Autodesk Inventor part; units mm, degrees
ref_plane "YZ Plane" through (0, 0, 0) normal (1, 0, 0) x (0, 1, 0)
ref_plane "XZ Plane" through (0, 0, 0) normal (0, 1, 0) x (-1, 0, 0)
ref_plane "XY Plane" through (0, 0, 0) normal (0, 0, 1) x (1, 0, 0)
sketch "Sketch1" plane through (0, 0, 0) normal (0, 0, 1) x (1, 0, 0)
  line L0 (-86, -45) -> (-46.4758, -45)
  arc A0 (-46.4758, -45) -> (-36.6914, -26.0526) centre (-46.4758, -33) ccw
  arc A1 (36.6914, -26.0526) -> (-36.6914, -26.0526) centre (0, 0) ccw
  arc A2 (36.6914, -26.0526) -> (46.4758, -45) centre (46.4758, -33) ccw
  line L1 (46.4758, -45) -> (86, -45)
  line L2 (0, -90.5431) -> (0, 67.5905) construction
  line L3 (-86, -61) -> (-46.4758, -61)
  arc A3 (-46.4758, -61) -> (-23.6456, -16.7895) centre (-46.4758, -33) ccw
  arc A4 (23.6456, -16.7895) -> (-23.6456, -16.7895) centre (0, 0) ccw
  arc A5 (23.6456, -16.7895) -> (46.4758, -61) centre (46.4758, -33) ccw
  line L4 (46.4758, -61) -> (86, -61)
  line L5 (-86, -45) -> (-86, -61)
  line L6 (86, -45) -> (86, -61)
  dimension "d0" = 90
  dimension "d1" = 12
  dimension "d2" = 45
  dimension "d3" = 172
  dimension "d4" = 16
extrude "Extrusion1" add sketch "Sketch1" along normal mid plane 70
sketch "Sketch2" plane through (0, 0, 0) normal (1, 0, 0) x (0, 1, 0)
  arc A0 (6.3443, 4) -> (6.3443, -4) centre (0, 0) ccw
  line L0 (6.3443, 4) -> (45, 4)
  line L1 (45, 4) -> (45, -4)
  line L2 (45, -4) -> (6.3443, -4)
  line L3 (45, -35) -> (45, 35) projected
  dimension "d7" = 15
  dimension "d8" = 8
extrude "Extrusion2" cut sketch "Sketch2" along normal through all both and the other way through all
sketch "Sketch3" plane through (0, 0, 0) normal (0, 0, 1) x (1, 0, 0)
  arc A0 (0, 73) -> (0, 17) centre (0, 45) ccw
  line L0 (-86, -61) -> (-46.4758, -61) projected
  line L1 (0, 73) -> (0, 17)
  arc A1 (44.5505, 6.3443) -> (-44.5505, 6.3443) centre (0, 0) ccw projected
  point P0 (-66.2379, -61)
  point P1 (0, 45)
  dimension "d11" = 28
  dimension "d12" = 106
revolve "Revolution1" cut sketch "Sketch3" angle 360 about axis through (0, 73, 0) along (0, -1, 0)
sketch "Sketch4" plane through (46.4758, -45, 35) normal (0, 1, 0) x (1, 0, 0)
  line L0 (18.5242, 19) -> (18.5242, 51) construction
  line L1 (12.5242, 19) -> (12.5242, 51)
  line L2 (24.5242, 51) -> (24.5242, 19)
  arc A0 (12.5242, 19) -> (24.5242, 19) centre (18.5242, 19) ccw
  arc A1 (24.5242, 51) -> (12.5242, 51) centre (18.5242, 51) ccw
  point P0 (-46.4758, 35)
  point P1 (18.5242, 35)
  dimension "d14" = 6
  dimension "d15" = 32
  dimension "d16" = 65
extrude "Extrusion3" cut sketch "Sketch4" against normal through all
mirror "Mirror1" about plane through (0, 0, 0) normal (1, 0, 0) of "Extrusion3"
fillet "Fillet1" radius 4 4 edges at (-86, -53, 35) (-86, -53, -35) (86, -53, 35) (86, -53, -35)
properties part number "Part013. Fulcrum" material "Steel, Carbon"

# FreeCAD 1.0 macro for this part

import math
import FreeCAD as App
import Part
import Sketcher

V = App.Vector


def edges_at(feature, points):
    """Names of the edges that pass closest to the given points."""
    edges = feature.Shape.Edges
    near = lambda p: min(range(len(edges)), key=lambda i: edges[i].distToShape(Part.Vertex(*p))[0])
    return sorted({f"Edge{near(p) + 1}" for p in points})

doc = App.newDocument("Part")
body = doc.addObject("PartDesign::Body", "Body")

# Sketch on XY plane
sketch1 = body.newObject("Sketcher::SketchObject", "Sketch")
sketch1.AttachmentSupport = (doc.getObject("XY_Plane"), [""])
sketch1.MapMode = "FlatFace"
sketch1.addGeometry(Part.LineSegment(V(-46, -45, 0), V(-86, -45, 0)), False)
sketch1.addGeometry(Part.LineSegment(V(-86, -45, 0), V(-86, -61, 0)), False)
sketch1.addGeometry(Part.LineSegment(V(-86, -61, 0), V(-46, -61, 0)), False)
sketch1.addGeometry(Part.ArcOfCircle(Part.Circle(V(-46, -33, 0), V(0, 0, 1), 28), math.radians(-90), math.radians(35)), False)
sketch1.addGeometry(Part.ArcOfCircle(Part.Circle(V(0, 0, 0), V(0, 0, 1), 29), math.radians(-35), math.radians(215)), False)
sketch1.addGeometry(Part.ArcOfCircle(Part.Circle(V(46, -33, 0), V(0, 0, 1), 28), math.radians(145), math.radians(270)), False)
sketch1.addGeometry(Part.LineSegment(V(46, -61, 0), V(86, -61, 0)), False)
sketch1.addGeometry(Part.LineSegment(V(86, -61, 0), V(86, -45, 0)), False)
sketch1.addGeometry(Part.LineSegment(V(86, -45, 0), V(46, -45, 0)), False)
sketch1.addGeometry(Part.ArcOfCircle(Part.Circle(V(46, -33, 0), V(0, 0, 1), 12), math.radians(145), math.radians(270)), False)
sketch1.addGeometry(Part.ArcOfCircle(Part.Circle(V(0, 0, 0), V(0, 0, 1), 45), math.radians(-35), math.radians(215)), False)
sketch1.addGeometry(Part.ArcOfCircle(Part.Circle(V(-46, -33, 0), V(0, 0, 1), 12), math.radians(-90), math.radians(35)), False)
sketch1.addConstraint(Sketcher.Constraint("Coincident", 0, 2, 1, 1))
sketch1.addConstraint(Sketcher.Constraint("Coincident", 1, 2, 2, 1))
sketch1.addConstraint(Sketcher.Constraint("Tangent", 2, 2, 3, 1))
sketch1.addConstraint(Sketcher.Constraint("Tangent", 3, 2, 4, 2))
sketch1.addConstraint(Sketcher.Constraint("Tangent", 4, 1, 5, 1))
sketch1.addConstraint(Sketcher.Constraint("Tangent", 5, 2, 6, 1))
sketch1.addConstraint(Sketcher.Constraint("Coincident", 6, 2, 7, 1))
sketch1.addConstraint(Sketcher.Constraint("Coincident", 7, 2, 8, 1))
sketch1.addConstraint(Sketcher.Constraint("Tangent", 8, 2, 9, 2))
sketch1.addConstraint(Sketcher.Constraint("Tangent", 9, 1, 10, 1))
sketch1.addConstraint(Sketcher.Constraint("Tangent", 10, 2, 11, 2))
sketch1.addConstraint(Sketcher.Constraint("Tangent", 11, 1, 0, 1))
sketch1.addConstraint(Sketcher.Constraint("Horizontal", 0))
sketch1.addConstraint(Sketcher.Constraint("Vertical", 1))
sketch1.addConstraint(Sketcher.Constraint("Horizontal", 2))
sketch1.addConstraint(Sketcher.Constraint("Horizontal", 6))
sketch1.addConstraint(Sketcher.Constraint("Vertical", 7))
sketch1.addConstraint(Sketcher.Constraint("Horizontal", 8))
sketch1.addConstraint(Sketcher.Constraint("Coincident", 4, 3, -1, 1))
sketch1.addConstraint(Sketcher.Constraint("Coincident", 10, 3, -1, 1))
sketch1.addConstraint(Sketcher.Constraint("Coincident", 9, 3, 5, 3))
sketch1.addConstraint(Sketcher.Constraint("Coincident", 11, 3, 3, 3))
sketch1.addConstraint(Sketcher.Constraint("Equal", 3, 5))
sketch1.addConstraint(Sketcher.Constraint("Symmetric", 1, 2, 6, 2, -2))
sketch1.addConstraint(Sketcher.Constraint("Radius", 9, 12.0))
sketch1.addConstraint(Sketcher.Constraint("Radius", 10, 45.0))
sketch1.addConstraint(Sketcher.Constraint("DistanceY", 1, 2, 1, 1, 16.0))
sketch1.addConstraint(Sketcher.Constraint("DistanceY", 0, 2, -1, 1, 45.0))
sketch1.addConstraint(Sketcher.Constraint("DistanceX", 0, 2, -1, 1, 86.0))
pad1 = body.newObject("PartDesign::Pad", "Pad")
pad1.Profile = sketch1
pad1.Length = 70
pad1.Midplane = True

# Sketch on YZ plane
sketch2 = body.newObject("Sketcher::SketchObject", "Sketch001")
sketch2.AttachmentSupport = (doc.getObject("YZ_Plane"), [""])
sketch2.MapMode = "FlatFace"
sketch2.addGeometry(Part.LineSegment(V(45, 4, 0), V(6, 4, 0)), False)
sketch2.addGeometry(Part.ArcOfCircle(Part.Circle(V(0, 0, 0), V(0, 0, 1), 8), math.radians(32), math.radians(328)), False)
sketch2.addGeometry(Part.LineSegment(V(6, -4, 0), V(45, -4, 0)), False)
sketch2.addGeometry(Part.LineSegment(V(45, -4, 0), V(45, 4, 0)), False)
sketch2.addConstraint(Sketcher.Constraint("Coincident", 0, 2, 1, 1))
sketch2.addConstraint(Sketcher.Constraint("Coincident", 1, 2, 2, 1))
sketch2.addConstraint(Sketcher.Constraint("Coincident", 2, 2, 3, 1))
sketch2.addConstraint(Sketcher.Constraint("Coincident", 3, 2, 0, 1))
sketch2.addConstraint(Sketcher.Constraint("Horizontal", 0))
sketch2.addConstraint(Sketcher.Constraint("Horizontal", 2))
sketch2.addConstraint(Sketcher.Constraint("Vertical", 3))
sketch2.addConstraint(Sketcher.Constraint("Coincident", 1, 3, -1, 1))
sketch2.addConstraint(Sketcher.Constraint("Vertical", 0, 2, 1, 2))
sketch2.addConstraint(Sketcher.Constraint("Radius", 1, 7.5))
sketch2.addConstraint(Sketcher.Constraint("DistanceY", 3, 1, 3, 2, 8.0))
sketch2.addConstraint(Sketcher.Constraint("DistanceX", -1, 1, 2, 2, 45.0))
pocket1 = body.newObject("PartDesign::Pocket", "Pocket")
pocket1.Profile = sketch2
pocket1.Type = "ThroughAll"
pocket1.Midplane = True

# Sketch on XY plane
sketch3 = body.newObject("Sketcher::SketchObject", "Sketch002")
sketch3.AttachmentSupport = (doc.getObject("XY_Plane"), [""])
sketch3.MapMode = "FlatFace"
sketch3.addGeometry(Part.ArcOfCircle(Part.Circle(V(0, 45, 0), V(0, 0, 1), 28), math.radians(90), math.radians(270)), False)
sketch3.addGeometry(Part.LineSegment(V(0, 17, 0), V(0, 73, 0)), False)
sketch3.addConstraint(Sketcher.Constraint("Coincident", 0, 1, 1, 2))
sketch3.addConstraint(Sketcher.Constraint("Coincident", 1, 1, 0, 2))
sketch3.addConstraint(Sketcher.Constraint("Vertical", 1))
sketch3.addConstraint(Sketcher.Constraint("PointOnObject", 0, 3, -2))
sketch3.addConstraint(Sketcher.Constraint("PointOnObject", 0, 1, -2))
sketch3.addConstraint(Sketcher.Constraint("Radius", 0, 28.0))
sketch3.addConstraint(Sketcher.Constraint("DistanceY", -1, 1, 0, 3, 45.0))
groove = body.newObject("PartDesign::Groove", "Groove")
groove.Profile = sketch3
groove.ReferenceAxis = (sketch3, ["V_Axis"])
groove.Angle = 360

# Sketch on XZ plane
sketch4 = body.newObject("Sketcher::SketchObject", "Sketch003")
sketch4.AttachmentSupport = (doc.getObject("XZ_Plane"), [""])
sketch4.MapMode = "FlatFace"
sketch4.AttachmentOffset = App.Placement(V(0, 0, 45), App.Rotation())
sketch4.addGeometry(Part.LineSegment(V(59, -16, 0), V(59, 16, 0)), False)
sketch4.addGeometry(Part.ArcOfCircle(Part.Circle(V(65, 16, 0), V(0, 0, 1), 6), math.radians(0), math.radians(180)), False)
sketch4.addGeometry(Part.LineSegment(V(71, 16, 0), V(71, -16, 0)), False)
sketch4.addGeometry(Part.ArcOfCircle(Part.Circle(V(65, -16, 0), V(0, 0, 1), 6), math.radians(180), math.radians(360)), False)
sketch4.addConstraint(Sketcher.Constraint("Tangent", 0, 2, 1, 2))
sketch4.addConstraint(Sketcher.Constraint("Tangent", 1, 1, 2, 1))
sketch4.addConstraint(Sketcher.Constraint("Tangent", 2, 2, 3, 2))
sketch4.addConstraint(Sketcher.Constraint("Tangent", 3, 1, 0, 1))
sketch4.addConstraint(Sketcher.Constraint("Vertical", 0))
sketch4.addConstraint(Sketcher.Constraint("Vertical", 2))
sketch4.addConstraint(Sketcher.Constraint("Radius", 1, 6.0))
sketch4.addConstraint(Sketcher.Constraint("DistanceY", 0, 1, 0, 2, 32.0))
sketch4.addConstraint(Sketcher.Constraint("DistanceX", -1, 1, 1, 3, 65.0))
sketch4.addConstraint(Sketcher.Constraint("DistanceY", -1, 1, 1, 3, 16.0))
pocket2 = body.newObject("PartDesign::Pocket", "Pocket001")
pocket2.Profile = sketch4
pocket2.Type = "ThroughAll"
pocket2.Reversed = True
doc.recompute()

mirrored = body.newObject("PartDesign::Mirrored", "Mirrored")
mirrored.Originals = [pocket2]
mirrored.MirrorPlane = (doc.getObject("YZ_Plane"), [""])
body.Tip = mirrored
doc.recompute()

fillet = body.newObject("PartDesign::Fillet", "Fillet")
fillet.Base = (mirrored, edges_at(mirrored, [
    (-86, -53, 35),
    (-86, -53, -35),
    (86, -53, 35),
    (86, -53, -35),
]))
fillet.Radius = 4

doc.recompute()
